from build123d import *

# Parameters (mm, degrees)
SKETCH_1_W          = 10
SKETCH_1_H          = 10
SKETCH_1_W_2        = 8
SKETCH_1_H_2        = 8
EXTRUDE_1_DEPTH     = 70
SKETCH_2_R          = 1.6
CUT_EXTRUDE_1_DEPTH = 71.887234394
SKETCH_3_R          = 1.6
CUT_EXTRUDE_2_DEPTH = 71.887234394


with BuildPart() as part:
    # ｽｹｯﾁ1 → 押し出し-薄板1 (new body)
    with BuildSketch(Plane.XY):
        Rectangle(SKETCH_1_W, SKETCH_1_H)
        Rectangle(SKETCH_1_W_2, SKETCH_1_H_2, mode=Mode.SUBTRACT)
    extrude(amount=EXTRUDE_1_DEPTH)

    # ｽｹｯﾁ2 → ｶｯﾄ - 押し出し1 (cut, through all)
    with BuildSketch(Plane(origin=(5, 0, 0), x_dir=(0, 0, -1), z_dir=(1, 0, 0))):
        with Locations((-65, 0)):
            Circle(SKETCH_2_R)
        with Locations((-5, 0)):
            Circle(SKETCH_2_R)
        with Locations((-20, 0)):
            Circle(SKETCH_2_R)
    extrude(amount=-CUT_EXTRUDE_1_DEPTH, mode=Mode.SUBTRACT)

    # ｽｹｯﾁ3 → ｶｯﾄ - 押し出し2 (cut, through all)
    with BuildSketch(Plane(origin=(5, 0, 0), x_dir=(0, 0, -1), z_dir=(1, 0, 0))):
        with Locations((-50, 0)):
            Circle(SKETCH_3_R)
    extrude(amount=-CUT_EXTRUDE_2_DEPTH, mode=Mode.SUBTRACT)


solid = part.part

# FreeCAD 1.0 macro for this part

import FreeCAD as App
import Part
import Sketcher

V = App.Vector
Q = App.Units.Quantity

doc = App.newDocument("Part")
body = doc.addObject("PartDesign::Body", "Body")

# Sketch on XY plane
sketch1 = body.newObject("Sketcher::SketchObject", "Sketch")
sketch1.AttachmentSupport = (doc.getObject("XY_Plane"), [""])
sketch1.MapMode = "FlatFace"
sketch1.addGeometry(Part.LineSegment(V(-5, 5, 0), V(-5, -5, 0)), False)
sketch1.addGeometry(Part.LineSegment(V(-5, -5, 0), V(5, -5, 0)), False)
sketch1.addGeometry(Part.LineSegment(V(5, -5, 0), V(5, 5, 0)), False)
sketch1.addGeometry(Part.LineSegment(V(5, 5, 0), V(-5, 5, 0)), False)
sketch1.addGeometry(Part.LineSegment(V(4, -4, 0), V(-4, -4, 0)), False)
sketch1.addGeometry(Part.LineSegment(V(-4, -4, 0), V(-4, 4, 0)), False)
sketch1.addGeometry(Part.LineSegment(V(-4, 4, 0), V(4, 4, 0)), False)
sketch1.addGeometry(Part.LineSegment(V(4, 4, 0), V(4, -4, 0)), False)
sketch1.addConstraint(Sketcher.Constraint("Coincident", 0, 2, 1, 1))
sketch1.addConstraint(Sketcher.Constraint("Coincident", 1, 2, 2, 1))
sketch1.addConstraint(Sketcher.Constraint("Coincident", 2, 2, 3, 1))
sketch1.addConstraint(Sketcher.Constraint("Coincident", 3, 2, 0, 1))
sketch1.addConstraint(Sketcher.Constraint("Coincident", 4, 2, 5, 1))
sketch1.addConstraint(Sketcher.Constraint("Coincident", 5, 2, 6, 1))
sketch1.addConstraint(Sketcher.Constraint("Coincident", 6, 2, 7, 1))
sketch1.addConstraint(Sketcher.Constraint("Coincident", 7, 2, 4, 1))
sketch1.addConstraint(Sketcher.Constraint("Vertical", 0))
sketch1.addConstraint(Sketcher.Constraint("Horizontal", 1))
sketch1.addConstraint(Sketcher.Constraint("Vertical", 2))
sketch1.addConstraint(Sketcher.Constraint("Horizontal", 3))
sketch1.addConstraint(Sketcher.Constraint("Horizontal", 4))
sketch1.addConstraint(Sketcher.Constraint("Vertical", 5))
sketch1.addConstraint(Sketcher.Constraint("Horizontal", 6))
sketch1.addConstraint(Sketcher.Constraint("Vertical", 7))
sketch1.addConstraint(Sketcher.Constraint("Symmetric", 0, 2, 2, 2, -1, 1))
sketch1.addConstraint(Sketcher.Constraint("Symmetric", 4, 2, 6, 2, -1, 1))
sketch1.addConstraint(Sketcher.Constraint("Equal", 3, 0))
sketch1.addConstraint(Sketcher.Constraint("Equal", 6, 5))
sketch1.addConstraint(Sketcher.Constraint("DistanceX", 1, 1, 1, 2, Q("10 mm")))
sketch1.addConstraint(Sketcher.Constraint("DistanceX", 4, 2, 4, 1, Q("8 mm")))
pad1 = body.newObject("PartDesign::Pad", "Pad")
pad1.Profile = sketch1
pad1.Length = 70

# Sketch on YZ plane
sketch2 = body.newObject("Sketcher::SketchObject", "Sketch001")
sketch2.AttachmentSupport = (doc.getObject("YZ_Plane"), [""])
sketch2.MapMode = "FlatFace"
sketch2.AttachmentOffset = App.Placement(V(0, 0, 5), App.Rotation())
sketch2.addGeometry(Part.Circle(V(0, 65, 0), V(0, 0, 1), 1.6), False)
sketch2.addGeometry(Part.Circle(V(0, 5, 0), V(0, 0, 1), 1.6), False)
sketch2.addGeometry(Part.Circle(V(0, 20, 0), V(0, 0, 1), 1.6), False)
sketch2.addConstraint(Sketcher.Constraint("Equal", 0, 1))
sketch2.addConstraint(Sketcher.Constraint("Equal", 1, 2))
sketch2.addConstraint(Sketcher.Constraint("PointOnObject", 0, 3, -2))
sketch2.addConstraint(Sketcher.Constraint("PointOnObject", 1, 3, -2))
sketch2.addConstraint(Sketcher.Constraint("PointOnObject", 2, 3, -2))
sketch2.addConstraint(Sketcher.Constraint("Diameter", 0, Q("3.2 mm")))
sketch2.addConstraint(Sketcher.Constraint("DistanceY", -1, 1, 0, 3, Q("65 mm")))
sketch2.addConstraint(Sketcher.Constraint("DistanceY", -1, 1, 1, 3, Q("5 mm")))
sketch2.addConstraint(Sketcher.Constraint("DistanceY", -1, 1, 2, 3, Q("20 mm")))
pocket1 = body.newObject("PartDesign::Pocket", "Pocket")
pocket1.Profile = sketch2
pocket1.Type = "ThroughAll"

# Sketch on YZ plane
sketch3 = body.newObject("Sketcher::SketchObject", "Sketch002")
sketch3.AttachmentSupport = (doc.getObject("YZ_Plane"), [""])
sketch3.MapMode = "FlatFace"
sketch3.AttachmentOffset = App.Placement(V(0, 0, 5), App.Rotation())
sketch3.addGeometry(Part.Circle(V(0, 50, 0), V(0, 0, 1), 1.6), False)
sketch3.addConstraint(Sketcher.Constraint("PointOnObject", 0, 3, -2))
sketch3.addConstraint(Sketcher.Constraint("Diameter", 0, Q("3.2 mm")))
sketch3.addConstraint(Sketcher.Constraint("DistanceY", -1, 1, 0, 3, Q("50 mm")))
pocket2 = body.newObject("PartDesign::Pocket", "Pocket001")
pocket2.Profile = sketch3
pocket2.Type = "ThroughAll"

doc.recompute()
